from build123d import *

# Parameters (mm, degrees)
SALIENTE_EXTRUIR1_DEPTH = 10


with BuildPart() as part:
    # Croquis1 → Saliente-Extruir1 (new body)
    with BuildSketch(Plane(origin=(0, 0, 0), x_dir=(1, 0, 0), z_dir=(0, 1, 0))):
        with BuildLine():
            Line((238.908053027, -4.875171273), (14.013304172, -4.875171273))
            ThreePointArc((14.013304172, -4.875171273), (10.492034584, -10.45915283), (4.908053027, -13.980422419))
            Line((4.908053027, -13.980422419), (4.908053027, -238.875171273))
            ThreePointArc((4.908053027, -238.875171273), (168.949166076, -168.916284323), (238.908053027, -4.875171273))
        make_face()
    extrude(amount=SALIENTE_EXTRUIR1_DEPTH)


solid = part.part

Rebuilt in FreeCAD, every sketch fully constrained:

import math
import FreeCAD as App
import Part
import Sketcher

V = App.Vector

doc = App.newDocument("Part")
body = doc.addObject("PartDesign::Body", "Body")

# Sketch on XZ plane
sketch1 = body.newObject("Sketcher::SketchObject", "Sketch")
sketch1.AttachmentSupport = (doc.getObject("XZ_Plane"), [""])
sketch1.MapMode = "FlatFace"
sketch1.addGeometry([
    Part.LineSegment(V(239, 5, 0), V(14, 5, 0)),
    Part.ArcOfCircle(Part.Circle(V(0, 0, 0), V(0, 0, 1), 15), math.radians(19), math.radians(71)),
    Part.LineSegment(V(5, 14, 0), V(5, 239, 0)),
    Part.ArcOfCircle(Part.Circle(V(0, 0, 0), V(0, 0, 1), 239), math.radians(1), math.radians(89)),
], False)
sketch1.addConstraint([
    Sketcher.Constraint("Coincident", 0, 2, 1, 1),
    Sketcher.Constraint("Coincident", 1, 2, 2, 1),
    Sketcher.Constraint("Coincident", 2, 2, 3, 2),
    Sketcher.Constraint("Coincident", 3, 1, 0, 1),
    Sketcher.Constraint("Horizontal", 0),
    Sketcher.Constraint("Vertical", 2),
    Sketcher.Constraint("Coincident", 3, 3, 1, 3),
    Sketcher.Constraint("Equal", 0, 2),
    Sketcher.Constraint("DistanceY", 0, 2, 2, 2, 234.0),
    Sketcher.Constraint("Radius", 1, 14.939482),
    Sketcher.Constraint("Radius", 3, 239.031706),
    Sketcher.Constraint("DistanceY", -1, 1, 0, 2, 4.875171),
    Sketcher.Constraint("DistanceX", 1, 3, -1, 1, 0.071774),
])
pad1 = body.newObject("PartDesign::Pad", "Pad")
pad1.Profile = sketch1
pad1.Length = 10
pad1.Reversed = True

doc.recompute()
